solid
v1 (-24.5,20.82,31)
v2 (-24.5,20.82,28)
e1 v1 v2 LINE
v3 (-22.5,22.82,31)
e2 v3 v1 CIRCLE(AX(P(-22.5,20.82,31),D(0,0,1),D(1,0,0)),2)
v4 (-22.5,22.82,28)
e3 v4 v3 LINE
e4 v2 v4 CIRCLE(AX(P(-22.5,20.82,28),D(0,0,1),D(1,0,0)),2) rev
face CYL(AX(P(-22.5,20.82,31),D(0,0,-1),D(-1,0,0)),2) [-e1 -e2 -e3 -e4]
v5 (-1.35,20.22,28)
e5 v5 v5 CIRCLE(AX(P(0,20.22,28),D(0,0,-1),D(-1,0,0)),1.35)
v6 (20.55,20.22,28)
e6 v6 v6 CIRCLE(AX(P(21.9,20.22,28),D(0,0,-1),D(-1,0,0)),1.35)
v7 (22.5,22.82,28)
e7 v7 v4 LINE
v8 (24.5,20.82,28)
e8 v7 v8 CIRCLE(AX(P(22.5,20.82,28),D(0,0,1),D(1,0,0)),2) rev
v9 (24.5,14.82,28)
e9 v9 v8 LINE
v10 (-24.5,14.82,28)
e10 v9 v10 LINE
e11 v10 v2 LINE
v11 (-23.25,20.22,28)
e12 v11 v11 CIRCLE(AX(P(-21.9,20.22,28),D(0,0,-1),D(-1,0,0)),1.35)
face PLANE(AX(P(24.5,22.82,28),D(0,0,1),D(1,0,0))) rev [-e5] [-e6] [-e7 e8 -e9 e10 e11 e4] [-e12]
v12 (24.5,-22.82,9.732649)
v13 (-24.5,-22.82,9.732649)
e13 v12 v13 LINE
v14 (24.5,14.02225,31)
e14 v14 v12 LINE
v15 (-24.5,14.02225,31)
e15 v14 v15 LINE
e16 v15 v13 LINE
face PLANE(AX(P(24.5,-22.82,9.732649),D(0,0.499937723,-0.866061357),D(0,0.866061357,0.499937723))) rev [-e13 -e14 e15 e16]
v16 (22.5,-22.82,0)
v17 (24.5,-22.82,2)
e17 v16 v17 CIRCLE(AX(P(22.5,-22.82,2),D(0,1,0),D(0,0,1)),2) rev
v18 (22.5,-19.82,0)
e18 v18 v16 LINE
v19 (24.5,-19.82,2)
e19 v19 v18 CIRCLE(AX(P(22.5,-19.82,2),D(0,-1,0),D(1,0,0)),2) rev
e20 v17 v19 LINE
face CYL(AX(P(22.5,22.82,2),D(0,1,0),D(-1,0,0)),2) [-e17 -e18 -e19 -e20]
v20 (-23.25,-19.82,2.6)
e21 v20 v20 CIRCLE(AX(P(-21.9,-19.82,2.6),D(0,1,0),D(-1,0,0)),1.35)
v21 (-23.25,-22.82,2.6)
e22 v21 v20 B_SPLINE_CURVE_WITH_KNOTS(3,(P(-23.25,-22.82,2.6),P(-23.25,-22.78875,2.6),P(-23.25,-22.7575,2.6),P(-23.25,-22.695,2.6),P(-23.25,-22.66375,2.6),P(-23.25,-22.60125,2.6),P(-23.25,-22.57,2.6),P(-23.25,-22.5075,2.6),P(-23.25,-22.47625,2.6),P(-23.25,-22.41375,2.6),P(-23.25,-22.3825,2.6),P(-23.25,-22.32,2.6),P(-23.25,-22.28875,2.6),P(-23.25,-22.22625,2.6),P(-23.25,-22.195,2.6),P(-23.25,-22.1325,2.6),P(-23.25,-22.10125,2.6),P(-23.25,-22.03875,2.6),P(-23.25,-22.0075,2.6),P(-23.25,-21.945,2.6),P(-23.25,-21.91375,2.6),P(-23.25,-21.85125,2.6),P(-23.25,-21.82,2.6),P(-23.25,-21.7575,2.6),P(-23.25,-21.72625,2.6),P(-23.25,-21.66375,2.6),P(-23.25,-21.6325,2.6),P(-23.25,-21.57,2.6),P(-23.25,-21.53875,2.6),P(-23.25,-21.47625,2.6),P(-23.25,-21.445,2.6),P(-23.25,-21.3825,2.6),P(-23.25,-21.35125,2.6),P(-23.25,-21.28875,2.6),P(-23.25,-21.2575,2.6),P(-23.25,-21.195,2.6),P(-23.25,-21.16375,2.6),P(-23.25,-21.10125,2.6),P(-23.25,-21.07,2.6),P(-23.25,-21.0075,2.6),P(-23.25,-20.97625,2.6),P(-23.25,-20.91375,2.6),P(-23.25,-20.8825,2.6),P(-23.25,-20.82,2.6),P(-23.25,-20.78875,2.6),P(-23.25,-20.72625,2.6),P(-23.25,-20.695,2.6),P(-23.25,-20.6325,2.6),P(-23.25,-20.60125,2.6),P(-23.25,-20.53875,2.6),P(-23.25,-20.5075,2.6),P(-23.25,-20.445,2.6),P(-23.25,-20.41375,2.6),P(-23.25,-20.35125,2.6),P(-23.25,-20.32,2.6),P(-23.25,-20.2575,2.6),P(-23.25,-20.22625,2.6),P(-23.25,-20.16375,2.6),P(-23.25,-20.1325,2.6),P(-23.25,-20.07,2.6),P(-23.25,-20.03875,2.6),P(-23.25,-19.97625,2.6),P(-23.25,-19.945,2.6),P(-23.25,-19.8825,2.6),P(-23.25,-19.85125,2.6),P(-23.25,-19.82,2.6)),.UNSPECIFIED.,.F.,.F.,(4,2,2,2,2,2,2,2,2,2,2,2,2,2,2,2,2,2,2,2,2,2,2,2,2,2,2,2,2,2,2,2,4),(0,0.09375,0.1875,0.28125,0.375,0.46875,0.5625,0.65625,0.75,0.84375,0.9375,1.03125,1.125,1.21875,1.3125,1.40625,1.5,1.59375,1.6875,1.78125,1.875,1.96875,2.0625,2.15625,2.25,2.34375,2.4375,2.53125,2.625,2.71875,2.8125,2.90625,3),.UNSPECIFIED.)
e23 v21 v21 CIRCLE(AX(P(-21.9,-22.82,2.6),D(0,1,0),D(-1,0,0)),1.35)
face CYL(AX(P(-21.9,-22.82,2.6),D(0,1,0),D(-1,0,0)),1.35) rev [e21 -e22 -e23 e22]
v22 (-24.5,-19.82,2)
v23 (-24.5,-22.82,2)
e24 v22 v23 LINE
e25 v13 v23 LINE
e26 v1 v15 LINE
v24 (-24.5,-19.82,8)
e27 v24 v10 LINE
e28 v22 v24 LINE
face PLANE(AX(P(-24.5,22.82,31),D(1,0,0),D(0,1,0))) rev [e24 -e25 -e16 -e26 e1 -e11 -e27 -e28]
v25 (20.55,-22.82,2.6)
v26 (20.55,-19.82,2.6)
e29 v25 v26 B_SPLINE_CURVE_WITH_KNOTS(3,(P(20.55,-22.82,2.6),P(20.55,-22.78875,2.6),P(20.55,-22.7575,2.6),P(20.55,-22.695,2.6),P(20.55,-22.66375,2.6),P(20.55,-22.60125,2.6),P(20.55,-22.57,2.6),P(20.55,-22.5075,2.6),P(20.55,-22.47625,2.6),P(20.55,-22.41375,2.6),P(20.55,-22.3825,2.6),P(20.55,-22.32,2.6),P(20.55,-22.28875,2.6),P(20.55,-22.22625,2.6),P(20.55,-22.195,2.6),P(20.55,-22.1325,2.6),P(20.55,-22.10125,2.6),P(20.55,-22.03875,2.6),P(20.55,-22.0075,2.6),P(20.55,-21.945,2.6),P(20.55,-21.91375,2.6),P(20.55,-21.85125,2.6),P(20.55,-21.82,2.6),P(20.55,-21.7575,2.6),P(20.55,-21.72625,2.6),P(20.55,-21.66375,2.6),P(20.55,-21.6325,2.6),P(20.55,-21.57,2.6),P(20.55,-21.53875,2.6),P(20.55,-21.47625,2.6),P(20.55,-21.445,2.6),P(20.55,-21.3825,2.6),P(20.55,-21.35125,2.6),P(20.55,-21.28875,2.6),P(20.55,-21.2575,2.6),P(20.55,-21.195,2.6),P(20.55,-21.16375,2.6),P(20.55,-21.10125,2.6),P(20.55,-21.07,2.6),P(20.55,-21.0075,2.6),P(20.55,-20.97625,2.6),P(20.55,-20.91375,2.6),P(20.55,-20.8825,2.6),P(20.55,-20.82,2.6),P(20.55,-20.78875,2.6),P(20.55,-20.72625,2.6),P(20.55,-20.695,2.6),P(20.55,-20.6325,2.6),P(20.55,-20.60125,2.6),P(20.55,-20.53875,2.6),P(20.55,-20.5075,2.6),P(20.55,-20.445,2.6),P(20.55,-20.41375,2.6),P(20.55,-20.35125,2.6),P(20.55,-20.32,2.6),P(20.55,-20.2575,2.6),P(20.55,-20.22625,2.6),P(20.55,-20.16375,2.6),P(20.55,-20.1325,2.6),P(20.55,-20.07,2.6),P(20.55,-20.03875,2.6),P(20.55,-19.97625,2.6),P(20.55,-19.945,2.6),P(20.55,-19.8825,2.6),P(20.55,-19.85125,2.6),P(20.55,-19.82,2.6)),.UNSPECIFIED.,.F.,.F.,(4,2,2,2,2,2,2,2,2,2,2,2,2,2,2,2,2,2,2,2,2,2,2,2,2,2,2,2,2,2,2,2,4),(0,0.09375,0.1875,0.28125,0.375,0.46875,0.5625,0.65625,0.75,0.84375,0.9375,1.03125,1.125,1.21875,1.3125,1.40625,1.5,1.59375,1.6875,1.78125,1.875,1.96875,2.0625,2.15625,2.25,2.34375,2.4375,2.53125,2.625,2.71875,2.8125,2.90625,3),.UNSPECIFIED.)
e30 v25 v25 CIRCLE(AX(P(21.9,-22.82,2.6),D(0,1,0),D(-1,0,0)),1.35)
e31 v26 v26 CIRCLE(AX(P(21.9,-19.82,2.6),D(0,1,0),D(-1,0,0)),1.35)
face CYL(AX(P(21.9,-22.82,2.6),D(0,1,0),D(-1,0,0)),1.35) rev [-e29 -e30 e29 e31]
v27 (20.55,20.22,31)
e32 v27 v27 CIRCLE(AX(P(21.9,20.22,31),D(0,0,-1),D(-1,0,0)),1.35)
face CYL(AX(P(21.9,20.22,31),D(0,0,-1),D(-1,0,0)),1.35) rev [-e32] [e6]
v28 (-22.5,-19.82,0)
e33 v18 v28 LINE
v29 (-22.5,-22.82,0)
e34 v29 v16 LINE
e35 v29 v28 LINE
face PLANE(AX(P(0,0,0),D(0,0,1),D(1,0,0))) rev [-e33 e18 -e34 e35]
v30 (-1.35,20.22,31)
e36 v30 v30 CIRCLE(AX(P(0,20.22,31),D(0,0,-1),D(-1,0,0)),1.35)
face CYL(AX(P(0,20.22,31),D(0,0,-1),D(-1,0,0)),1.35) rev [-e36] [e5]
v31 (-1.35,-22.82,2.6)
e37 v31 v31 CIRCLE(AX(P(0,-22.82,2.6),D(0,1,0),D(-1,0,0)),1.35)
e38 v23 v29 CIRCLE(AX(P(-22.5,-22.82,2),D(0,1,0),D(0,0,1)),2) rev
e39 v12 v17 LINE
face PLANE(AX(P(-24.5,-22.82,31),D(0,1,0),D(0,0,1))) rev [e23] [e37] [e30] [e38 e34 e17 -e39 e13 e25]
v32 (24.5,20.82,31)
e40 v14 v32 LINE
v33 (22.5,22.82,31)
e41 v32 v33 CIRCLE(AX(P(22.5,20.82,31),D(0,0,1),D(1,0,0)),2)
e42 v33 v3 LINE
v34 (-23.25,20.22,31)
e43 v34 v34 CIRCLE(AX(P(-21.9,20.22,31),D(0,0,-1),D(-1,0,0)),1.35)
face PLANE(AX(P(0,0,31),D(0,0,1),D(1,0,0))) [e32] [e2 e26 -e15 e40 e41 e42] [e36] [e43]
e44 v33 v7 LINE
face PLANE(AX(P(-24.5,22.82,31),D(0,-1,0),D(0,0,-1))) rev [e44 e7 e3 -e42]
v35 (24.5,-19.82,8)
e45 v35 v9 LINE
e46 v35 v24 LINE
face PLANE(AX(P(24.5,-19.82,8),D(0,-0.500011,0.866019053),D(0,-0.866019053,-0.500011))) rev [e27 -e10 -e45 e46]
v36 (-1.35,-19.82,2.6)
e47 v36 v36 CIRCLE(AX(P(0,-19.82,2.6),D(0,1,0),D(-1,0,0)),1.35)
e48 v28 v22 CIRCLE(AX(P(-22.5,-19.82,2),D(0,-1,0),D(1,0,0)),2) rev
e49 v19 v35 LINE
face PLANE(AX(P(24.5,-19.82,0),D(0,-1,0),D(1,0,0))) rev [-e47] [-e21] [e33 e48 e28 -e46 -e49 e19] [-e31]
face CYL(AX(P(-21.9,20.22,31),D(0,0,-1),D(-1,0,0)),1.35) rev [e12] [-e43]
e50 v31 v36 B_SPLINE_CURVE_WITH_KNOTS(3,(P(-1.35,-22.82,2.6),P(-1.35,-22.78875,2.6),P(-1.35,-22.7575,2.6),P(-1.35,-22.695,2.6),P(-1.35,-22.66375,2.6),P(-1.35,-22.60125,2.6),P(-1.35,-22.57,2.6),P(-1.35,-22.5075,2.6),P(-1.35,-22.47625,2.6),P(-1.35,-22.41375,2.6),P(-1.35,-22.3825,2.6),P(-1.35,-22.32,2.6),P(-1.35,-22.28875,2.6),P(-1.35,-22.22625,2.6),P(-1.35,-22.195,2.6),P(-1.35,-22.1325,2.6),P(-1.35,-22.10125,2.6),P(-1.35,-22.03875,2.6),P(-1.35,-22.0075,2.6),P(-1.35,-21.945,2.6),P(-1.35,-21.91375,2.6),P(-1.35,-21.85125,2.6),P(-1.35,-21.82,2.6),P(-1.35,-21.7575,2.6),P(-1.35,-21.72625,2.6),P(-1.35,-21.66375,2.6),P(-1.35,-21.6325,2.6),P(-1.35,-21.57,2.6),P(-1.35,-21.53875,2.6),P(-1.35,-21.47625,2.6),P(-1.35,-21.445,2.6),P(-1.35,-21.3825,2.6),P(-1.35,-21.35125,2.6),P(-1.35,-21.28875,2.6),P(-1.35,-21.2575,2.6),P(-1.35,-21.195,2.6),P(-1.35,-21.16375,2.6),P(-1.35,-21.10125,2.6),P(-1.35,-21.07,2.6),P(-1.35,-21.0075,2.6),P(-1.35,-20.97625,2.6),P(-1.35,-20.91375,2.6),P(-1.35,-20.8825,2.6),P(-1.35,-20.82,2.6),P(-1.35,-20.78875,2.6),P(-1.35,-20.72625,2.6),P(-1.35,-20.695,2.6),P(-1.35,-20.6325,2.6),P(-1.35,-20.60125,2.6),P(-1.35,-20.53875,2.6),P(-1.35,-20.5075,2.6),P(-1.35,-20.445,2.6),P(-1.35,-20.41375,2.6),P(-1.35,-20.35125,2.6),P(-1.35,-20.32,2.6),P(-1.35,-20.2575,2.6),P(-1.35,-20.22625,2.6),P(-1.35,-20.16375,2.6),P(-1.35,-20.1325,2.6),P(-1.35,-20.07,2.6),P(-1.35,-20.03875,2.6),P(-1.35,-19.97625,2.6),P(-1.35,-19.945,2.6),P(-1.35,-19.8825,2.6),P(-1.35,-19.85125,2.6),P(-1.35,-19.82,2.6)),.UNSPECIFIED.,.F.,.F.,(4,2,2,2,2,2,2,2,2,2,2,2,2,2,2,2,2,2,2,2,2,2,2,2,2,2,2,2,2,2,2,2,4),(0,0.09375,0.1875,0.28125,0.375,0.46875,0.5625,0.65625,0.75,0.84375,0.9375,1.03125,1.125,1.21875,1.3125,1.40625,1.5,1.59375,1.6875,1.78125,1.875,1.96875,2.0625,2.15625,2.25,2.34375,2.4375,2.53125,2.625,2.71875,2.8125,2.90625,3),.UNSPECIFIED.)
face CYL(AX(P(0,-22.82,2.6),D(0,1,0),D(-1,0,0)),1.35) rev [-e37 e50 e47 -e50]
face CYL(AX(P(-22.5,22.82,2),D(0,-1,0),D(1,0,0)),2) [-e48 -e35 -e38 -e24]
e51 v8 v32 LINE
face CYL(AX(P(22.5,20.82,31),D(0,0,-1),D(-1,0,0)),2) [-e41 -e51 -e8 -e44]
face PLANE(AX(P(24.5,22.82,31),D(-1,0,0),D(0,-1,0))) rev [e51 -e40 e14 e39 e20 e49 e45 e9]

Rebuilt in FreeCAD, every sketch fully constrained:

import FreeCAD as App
import Part
import Sketcher


def edges_at(feature, points):
    """Names of the edges that pass closest to the given points."""
    edges = feature.Shape.Edges
    near = lambda p: min(range(len(edges)), key=lambda i: edges[i].distToShape(Part.Vertex(*p))[0])
    return sorted({f"Edge{near(p) + 1}" for p in points})


def add_polygon(sketch, points):
    """Adds a closed chain of lines whose ends are joined by coincident constraints."""
    first, n = sketch.GeometryCount, len(points)
    for a, b in zip(points, points[1:] + points[:1]):
        sketch.addGeometry(Part.LineSegment(App.Vector(*a, 0), App.Vector(*b, 0)), False)
    for i in range(n):
        sketch.addConstraint(Sketcher.Constraint("Coincident", first + i, 2, first + (i + 1) % n, 1))

doc = App.newDocument("Part")
params = doc.addObject("Spreadsheet::Sheet", "Params")
for row, (alias, value) in enumerate([
    ("sketch1_width", "49 mm"),
    ("sketch1_height", "45.64 mm"),
    ("pad1_length", "31 mm"),
    ("sketch2_length", "42.54 mm"),
    ("sketch3_width", "8 mm"),
    ("sketch3_height", "28 mm"),
    ("sketch3_width2", "42.64 mm"),
    ("sketch4_diameter", "2.7 mm"),
    ("sketch5_diameter", "2.7 mm"),
    ("fillet_radius", "2 mm"),
], start=1):
    params.set(f"A{row}", alias)
    params.set(f"B{row}", "=" + value)
    params.setAlias(f"B{row}", alias)

body = doc.addObject("PartDesign::Body", "Body")

# Sketch on XY plane
sketch1 = doc.addObject("Sketcher::SketchObject", "Sketch")
body.addObject(sketch1)
sketch1.AttachmentSupport = (doc.XY_Plane, [""])
sketch1.MapMode = "FlatFace"
add_polygon(sketch1, [(-24, 23), (-24, -23), (24, -23), (24, 23)])  # lines 0-3
sketch1.addConstraint(Sketcher.Constraint("Vertical", 0))
sketch1.addConstraint(Sketcher.Constraint("Horizontal", 1))
sketch1.addConstraint(Sketcher.Constraint("Vertical", 2))
sketch1.addConstraint(Sketcher.Constraint("Horizontal", 3))
sketch1.addConstraint(Sketcher.Constraint("Symmetric", 0, 2, 2, 2, -1, 1))
sketch1.addConstraint(Sketcher.Constraint("DistanceX", 1, 1, 1, 2, 49.0))
sketch1.addConstraint(Sketcher.Constraint("DistanceY", 0, 2, 0, 1, 45.64))
sketch1.setExpression("Constraints[9]", "Params.sketch1_width")
sketch1.setExpression("Constraints[10]", "Params.sketch1_height")
pad1 = doc.addObject("PartDesign::Pad", "Pad")
body.addObject(pad1)
pad1.Profile = sketch1
pad1.setExpression("Length", "Params.pad1_length")

# Sketch on YZ plane
sketch2 = doc.addObject("Sketcher::SketchObject", "Sketch001")
body.addObject(sketch2)
sketch2.AttachmentSupport = (doc.YZ_Plane, [""])
sketch2.MapMode = "FlatFace"
sketch2.AttachmentOffset = App.Placement(App.Vector(0, 0, -24.5), App.Rotation())
add_polygon(sketch2, [(-23, 10), (-23, 31), (14, 31)])  # lines 0-2
sketch2.addConstraint(Sketcher.Constraint("Vertical", 0))
sketch2.addConstraint(Sketcher.Constraint("Horizontal", 1))
sketch2.addConstraint(Sketcher.Constraint("DistanceY", -1, 1, 0, 2, 31.0))
sketch2.addConstraint(Sketcher.Constraint("Distance", 2, 42.54))
sketch2.addConstraint(Sketcher.Constraint("DistanceX", 0, 2, -1, 1, 22.82))
sketch2.addConstraint(Sketcher.Constraint("DistanceX", 1, 1, 1, 2, 36.84225))
sketch2.setExpression("Constraints[6]", "Params.sketch2_length")
pocket1 = doc.addObject("PartDesign::Pocket", "Pocket")
body.addObject(pocket1)
pocket1.Profile = sketch2
pocket1.Type = "ThroughAll"
pocket1.Reversed = True

# Sketch on YZ plane
sketch3 = doc.addObject("Sketcher::SketchObject", "Sketch002")
body.addObject(sketch3)
sketch3.AttachmentSupport = (doc.YZ_Plane, [""])
sketch3.MapMode = "FlatFace"
sketch3.AttachmentOffset = App.Placement(App.Vector(0, 0, -24.5), App.Rotation())
add_polygon(sketch3, [(-20, 0), (-20, 8), (15, 28), (23, 28), (23, 0)])  # lines 0-4
sketch3.addConstraint(Sketcher.Constraint("Vertical", 0))
sketch3.addConstraint(Sketcher.Constraint("Horizontal", 2))
sketch3.addConstraint(Sketcher.Constraint("Vertical", 3))
sketch3.addConstraint(Sketcher.Constraint("Horizontal", 4))
sketch3.addConstraint(Sketcher.Constraint("PointOnObject", 3, 2, -1))
sketch3.addConstraint(Sketcher.Constraint("Equal", 2, 0))
sketch3.addConstraint(Sketcher.Constraint("DistanceX", 2, 1, 2, 2, 8.0))
sketch3.addConstraint(Sketcher.Constraint("DistanceY", 3, 2, 3, 1, 28.0))
sketch3.addConstraint(Sketcher.Constraint("DistanceX", 4, 2, 4, 1, 42.64))
sketch3.addConstraint(Sketcher.Constraint("DistanceX", 0, 2, -1, 1, 19.82))
sketch3.setExpression("Constraints[11]", "Params.sketch3_width")
sketch3.setExpression("Constraints[12]", "Params.sketch3_height")
sketch3.setExpression("Constraints[13]", "Params.sketch3_width2")
pocket2 = doc.addObject("PartDesign::Pocket", "Pocket001")
body.addObject(pocket2)
pocket2.Profile = sketch3
pocket2.Type = "ThroughAll"
pocket2.Reversed = True

# Sketch on XZ plane
sketch4 = doc.addObject("Sketcher::SketchObject", "Sketch003")
body.addObject(sketch4)
sketch4.AttachmentSupport = (doc.XZ_Plane, [""])
sketch4.MapMode = "FlatFace"
sketch4.AttachmentOffset = App.Placement(App.Vector(0, 0, 19.82), App.Rotation())
sketch4.addGeometry(Part.Circle(App.Vector(21.9, 2.6, 0), App.Vector(0, 0, 1), 1.4), False)
sketch4.addGeometry(Part.Circle(App.Vector(0, 2.6, 0), App.Vector(0, 0, 1), 1.4), False)
sketch4.addGeometry(Part.Circle(App.Vector(-21.9, 2.6, 0), App.Vector(0, 0, 1), 1.4), False)
sketch4.addConstraint(Sketcher.Constraint("Equal", 0, 1))
sketch4.addConstraint(Sketcher.Constraint("Equal", 1, 2))
sketch4.addConstraint(Sketcher.Constraint("Symmetric", 0, 3, 2, 3, -2))
sketch4.addConstraint(Sketcher.Constraint("PointOnObject", 1, 3, -2))
sketch4.addConstraint(Sketcher.Constraint("Horizontal", 0, 3, 1, 3))
sketch4.addConstraint(Sketcher.Constraint("Diameter", 0, 2.7))
sketch4.addConstraint(Sketcher.Constraint("DistanceX", -1, 1, 0, 3, 21.9))
sketch4.addConstraint(Sketcher.Constraint("DistanceY", -1, 1, 0, 3, 2.6))
sketch4.setExpression("Constraints[5]", "Params.sketch4_diameter")
pocket3 = doc.addObject("PartDesign::Pocket", "Pocket002")
body.addObject(pocket3)
pocket3.Profile = sketch4
pocket3.Type = "ThroughAll"
pocket3.Reversed = True

# Sketch on XY plane
sketch5 = doc.addObject("Sketcher::SketchObject", "Sketch004")
body.addObject(sketch5)
sketch5.AttachmentSupport = (doc.XY_Plane, [""])
sketch5.MapMode = "FlatFace"
sketch5.AttachmentOffset = App.Placement(App.Vector(0, 0, 28), App.Rotation())
sketch5.addGeometry(Part.Circle(App.Vector(-21.9, 20.2, 0), App.Vector(0, 0, 1), 1.4), False)
sketch5.addGeometry(Part.Circle(App.Vector(0, 20.2, 0), App.Vector(0, 0, 1), 1.4), False)
sketch5.addGeometry(Part.Circle(App.Vector(21.9, 20.2, 0), App.Vector(0, 0, 1), 1.4), False)
sketch5.addConstraint(Sketcher.Constraint("Equal", 0, 1))
sketch5.addConstraint(Sketcher.Constraint("Equal", 1, 2))
sketch5.addConstraint(Sketcher.Constraint("Symmetric", 0, 3, 2, 3, -2))
sketch5.addConstraint(Sketcher.Constraint("PointOnObject", 1, 3, -2))
sketch5.addConstraint(Sketcher.Constraint("Horizontal", 0, 3, 1, 3))
sketch5.addConstraint(Sketcher.Constraint("Diameter", 0, 2.7))
sketch5.addConstraint(Sketcher.Constraint("DistanceX", 0, 3, -1, 1, 21.9))
sketch5.addConstraint(Sketcher.Constraint("DistanceY", -1, 1, 0, 3, 20.22))
sketch5.setExpression("Constraints[5]", "Params.sketch5_diameter")
pocket4 = doc.addObject("PartDesign::Pocket", "Pocket003")
body.addObject(pocket4)
pocket4.Profile = sketch5
pocket4.Type = "ThroughAll"
pocket4.Reversed = True
doc.recompute()

fillet = doc.addObject("PartDesign::Fillet", "Fillet")
body.addObject(fillet)
fillet.Base = (pocket4, edges_at(pocket4, [
    (-24.5, -21.32, 0),
    (24.5, -21.32, 0),
    (-24.5, 22.82, 29.5),
    (24.5, 22.82, 29.5),
]))
fillet.setExpression("Radius", "Params.fillet_radius")

doc.recompute()
